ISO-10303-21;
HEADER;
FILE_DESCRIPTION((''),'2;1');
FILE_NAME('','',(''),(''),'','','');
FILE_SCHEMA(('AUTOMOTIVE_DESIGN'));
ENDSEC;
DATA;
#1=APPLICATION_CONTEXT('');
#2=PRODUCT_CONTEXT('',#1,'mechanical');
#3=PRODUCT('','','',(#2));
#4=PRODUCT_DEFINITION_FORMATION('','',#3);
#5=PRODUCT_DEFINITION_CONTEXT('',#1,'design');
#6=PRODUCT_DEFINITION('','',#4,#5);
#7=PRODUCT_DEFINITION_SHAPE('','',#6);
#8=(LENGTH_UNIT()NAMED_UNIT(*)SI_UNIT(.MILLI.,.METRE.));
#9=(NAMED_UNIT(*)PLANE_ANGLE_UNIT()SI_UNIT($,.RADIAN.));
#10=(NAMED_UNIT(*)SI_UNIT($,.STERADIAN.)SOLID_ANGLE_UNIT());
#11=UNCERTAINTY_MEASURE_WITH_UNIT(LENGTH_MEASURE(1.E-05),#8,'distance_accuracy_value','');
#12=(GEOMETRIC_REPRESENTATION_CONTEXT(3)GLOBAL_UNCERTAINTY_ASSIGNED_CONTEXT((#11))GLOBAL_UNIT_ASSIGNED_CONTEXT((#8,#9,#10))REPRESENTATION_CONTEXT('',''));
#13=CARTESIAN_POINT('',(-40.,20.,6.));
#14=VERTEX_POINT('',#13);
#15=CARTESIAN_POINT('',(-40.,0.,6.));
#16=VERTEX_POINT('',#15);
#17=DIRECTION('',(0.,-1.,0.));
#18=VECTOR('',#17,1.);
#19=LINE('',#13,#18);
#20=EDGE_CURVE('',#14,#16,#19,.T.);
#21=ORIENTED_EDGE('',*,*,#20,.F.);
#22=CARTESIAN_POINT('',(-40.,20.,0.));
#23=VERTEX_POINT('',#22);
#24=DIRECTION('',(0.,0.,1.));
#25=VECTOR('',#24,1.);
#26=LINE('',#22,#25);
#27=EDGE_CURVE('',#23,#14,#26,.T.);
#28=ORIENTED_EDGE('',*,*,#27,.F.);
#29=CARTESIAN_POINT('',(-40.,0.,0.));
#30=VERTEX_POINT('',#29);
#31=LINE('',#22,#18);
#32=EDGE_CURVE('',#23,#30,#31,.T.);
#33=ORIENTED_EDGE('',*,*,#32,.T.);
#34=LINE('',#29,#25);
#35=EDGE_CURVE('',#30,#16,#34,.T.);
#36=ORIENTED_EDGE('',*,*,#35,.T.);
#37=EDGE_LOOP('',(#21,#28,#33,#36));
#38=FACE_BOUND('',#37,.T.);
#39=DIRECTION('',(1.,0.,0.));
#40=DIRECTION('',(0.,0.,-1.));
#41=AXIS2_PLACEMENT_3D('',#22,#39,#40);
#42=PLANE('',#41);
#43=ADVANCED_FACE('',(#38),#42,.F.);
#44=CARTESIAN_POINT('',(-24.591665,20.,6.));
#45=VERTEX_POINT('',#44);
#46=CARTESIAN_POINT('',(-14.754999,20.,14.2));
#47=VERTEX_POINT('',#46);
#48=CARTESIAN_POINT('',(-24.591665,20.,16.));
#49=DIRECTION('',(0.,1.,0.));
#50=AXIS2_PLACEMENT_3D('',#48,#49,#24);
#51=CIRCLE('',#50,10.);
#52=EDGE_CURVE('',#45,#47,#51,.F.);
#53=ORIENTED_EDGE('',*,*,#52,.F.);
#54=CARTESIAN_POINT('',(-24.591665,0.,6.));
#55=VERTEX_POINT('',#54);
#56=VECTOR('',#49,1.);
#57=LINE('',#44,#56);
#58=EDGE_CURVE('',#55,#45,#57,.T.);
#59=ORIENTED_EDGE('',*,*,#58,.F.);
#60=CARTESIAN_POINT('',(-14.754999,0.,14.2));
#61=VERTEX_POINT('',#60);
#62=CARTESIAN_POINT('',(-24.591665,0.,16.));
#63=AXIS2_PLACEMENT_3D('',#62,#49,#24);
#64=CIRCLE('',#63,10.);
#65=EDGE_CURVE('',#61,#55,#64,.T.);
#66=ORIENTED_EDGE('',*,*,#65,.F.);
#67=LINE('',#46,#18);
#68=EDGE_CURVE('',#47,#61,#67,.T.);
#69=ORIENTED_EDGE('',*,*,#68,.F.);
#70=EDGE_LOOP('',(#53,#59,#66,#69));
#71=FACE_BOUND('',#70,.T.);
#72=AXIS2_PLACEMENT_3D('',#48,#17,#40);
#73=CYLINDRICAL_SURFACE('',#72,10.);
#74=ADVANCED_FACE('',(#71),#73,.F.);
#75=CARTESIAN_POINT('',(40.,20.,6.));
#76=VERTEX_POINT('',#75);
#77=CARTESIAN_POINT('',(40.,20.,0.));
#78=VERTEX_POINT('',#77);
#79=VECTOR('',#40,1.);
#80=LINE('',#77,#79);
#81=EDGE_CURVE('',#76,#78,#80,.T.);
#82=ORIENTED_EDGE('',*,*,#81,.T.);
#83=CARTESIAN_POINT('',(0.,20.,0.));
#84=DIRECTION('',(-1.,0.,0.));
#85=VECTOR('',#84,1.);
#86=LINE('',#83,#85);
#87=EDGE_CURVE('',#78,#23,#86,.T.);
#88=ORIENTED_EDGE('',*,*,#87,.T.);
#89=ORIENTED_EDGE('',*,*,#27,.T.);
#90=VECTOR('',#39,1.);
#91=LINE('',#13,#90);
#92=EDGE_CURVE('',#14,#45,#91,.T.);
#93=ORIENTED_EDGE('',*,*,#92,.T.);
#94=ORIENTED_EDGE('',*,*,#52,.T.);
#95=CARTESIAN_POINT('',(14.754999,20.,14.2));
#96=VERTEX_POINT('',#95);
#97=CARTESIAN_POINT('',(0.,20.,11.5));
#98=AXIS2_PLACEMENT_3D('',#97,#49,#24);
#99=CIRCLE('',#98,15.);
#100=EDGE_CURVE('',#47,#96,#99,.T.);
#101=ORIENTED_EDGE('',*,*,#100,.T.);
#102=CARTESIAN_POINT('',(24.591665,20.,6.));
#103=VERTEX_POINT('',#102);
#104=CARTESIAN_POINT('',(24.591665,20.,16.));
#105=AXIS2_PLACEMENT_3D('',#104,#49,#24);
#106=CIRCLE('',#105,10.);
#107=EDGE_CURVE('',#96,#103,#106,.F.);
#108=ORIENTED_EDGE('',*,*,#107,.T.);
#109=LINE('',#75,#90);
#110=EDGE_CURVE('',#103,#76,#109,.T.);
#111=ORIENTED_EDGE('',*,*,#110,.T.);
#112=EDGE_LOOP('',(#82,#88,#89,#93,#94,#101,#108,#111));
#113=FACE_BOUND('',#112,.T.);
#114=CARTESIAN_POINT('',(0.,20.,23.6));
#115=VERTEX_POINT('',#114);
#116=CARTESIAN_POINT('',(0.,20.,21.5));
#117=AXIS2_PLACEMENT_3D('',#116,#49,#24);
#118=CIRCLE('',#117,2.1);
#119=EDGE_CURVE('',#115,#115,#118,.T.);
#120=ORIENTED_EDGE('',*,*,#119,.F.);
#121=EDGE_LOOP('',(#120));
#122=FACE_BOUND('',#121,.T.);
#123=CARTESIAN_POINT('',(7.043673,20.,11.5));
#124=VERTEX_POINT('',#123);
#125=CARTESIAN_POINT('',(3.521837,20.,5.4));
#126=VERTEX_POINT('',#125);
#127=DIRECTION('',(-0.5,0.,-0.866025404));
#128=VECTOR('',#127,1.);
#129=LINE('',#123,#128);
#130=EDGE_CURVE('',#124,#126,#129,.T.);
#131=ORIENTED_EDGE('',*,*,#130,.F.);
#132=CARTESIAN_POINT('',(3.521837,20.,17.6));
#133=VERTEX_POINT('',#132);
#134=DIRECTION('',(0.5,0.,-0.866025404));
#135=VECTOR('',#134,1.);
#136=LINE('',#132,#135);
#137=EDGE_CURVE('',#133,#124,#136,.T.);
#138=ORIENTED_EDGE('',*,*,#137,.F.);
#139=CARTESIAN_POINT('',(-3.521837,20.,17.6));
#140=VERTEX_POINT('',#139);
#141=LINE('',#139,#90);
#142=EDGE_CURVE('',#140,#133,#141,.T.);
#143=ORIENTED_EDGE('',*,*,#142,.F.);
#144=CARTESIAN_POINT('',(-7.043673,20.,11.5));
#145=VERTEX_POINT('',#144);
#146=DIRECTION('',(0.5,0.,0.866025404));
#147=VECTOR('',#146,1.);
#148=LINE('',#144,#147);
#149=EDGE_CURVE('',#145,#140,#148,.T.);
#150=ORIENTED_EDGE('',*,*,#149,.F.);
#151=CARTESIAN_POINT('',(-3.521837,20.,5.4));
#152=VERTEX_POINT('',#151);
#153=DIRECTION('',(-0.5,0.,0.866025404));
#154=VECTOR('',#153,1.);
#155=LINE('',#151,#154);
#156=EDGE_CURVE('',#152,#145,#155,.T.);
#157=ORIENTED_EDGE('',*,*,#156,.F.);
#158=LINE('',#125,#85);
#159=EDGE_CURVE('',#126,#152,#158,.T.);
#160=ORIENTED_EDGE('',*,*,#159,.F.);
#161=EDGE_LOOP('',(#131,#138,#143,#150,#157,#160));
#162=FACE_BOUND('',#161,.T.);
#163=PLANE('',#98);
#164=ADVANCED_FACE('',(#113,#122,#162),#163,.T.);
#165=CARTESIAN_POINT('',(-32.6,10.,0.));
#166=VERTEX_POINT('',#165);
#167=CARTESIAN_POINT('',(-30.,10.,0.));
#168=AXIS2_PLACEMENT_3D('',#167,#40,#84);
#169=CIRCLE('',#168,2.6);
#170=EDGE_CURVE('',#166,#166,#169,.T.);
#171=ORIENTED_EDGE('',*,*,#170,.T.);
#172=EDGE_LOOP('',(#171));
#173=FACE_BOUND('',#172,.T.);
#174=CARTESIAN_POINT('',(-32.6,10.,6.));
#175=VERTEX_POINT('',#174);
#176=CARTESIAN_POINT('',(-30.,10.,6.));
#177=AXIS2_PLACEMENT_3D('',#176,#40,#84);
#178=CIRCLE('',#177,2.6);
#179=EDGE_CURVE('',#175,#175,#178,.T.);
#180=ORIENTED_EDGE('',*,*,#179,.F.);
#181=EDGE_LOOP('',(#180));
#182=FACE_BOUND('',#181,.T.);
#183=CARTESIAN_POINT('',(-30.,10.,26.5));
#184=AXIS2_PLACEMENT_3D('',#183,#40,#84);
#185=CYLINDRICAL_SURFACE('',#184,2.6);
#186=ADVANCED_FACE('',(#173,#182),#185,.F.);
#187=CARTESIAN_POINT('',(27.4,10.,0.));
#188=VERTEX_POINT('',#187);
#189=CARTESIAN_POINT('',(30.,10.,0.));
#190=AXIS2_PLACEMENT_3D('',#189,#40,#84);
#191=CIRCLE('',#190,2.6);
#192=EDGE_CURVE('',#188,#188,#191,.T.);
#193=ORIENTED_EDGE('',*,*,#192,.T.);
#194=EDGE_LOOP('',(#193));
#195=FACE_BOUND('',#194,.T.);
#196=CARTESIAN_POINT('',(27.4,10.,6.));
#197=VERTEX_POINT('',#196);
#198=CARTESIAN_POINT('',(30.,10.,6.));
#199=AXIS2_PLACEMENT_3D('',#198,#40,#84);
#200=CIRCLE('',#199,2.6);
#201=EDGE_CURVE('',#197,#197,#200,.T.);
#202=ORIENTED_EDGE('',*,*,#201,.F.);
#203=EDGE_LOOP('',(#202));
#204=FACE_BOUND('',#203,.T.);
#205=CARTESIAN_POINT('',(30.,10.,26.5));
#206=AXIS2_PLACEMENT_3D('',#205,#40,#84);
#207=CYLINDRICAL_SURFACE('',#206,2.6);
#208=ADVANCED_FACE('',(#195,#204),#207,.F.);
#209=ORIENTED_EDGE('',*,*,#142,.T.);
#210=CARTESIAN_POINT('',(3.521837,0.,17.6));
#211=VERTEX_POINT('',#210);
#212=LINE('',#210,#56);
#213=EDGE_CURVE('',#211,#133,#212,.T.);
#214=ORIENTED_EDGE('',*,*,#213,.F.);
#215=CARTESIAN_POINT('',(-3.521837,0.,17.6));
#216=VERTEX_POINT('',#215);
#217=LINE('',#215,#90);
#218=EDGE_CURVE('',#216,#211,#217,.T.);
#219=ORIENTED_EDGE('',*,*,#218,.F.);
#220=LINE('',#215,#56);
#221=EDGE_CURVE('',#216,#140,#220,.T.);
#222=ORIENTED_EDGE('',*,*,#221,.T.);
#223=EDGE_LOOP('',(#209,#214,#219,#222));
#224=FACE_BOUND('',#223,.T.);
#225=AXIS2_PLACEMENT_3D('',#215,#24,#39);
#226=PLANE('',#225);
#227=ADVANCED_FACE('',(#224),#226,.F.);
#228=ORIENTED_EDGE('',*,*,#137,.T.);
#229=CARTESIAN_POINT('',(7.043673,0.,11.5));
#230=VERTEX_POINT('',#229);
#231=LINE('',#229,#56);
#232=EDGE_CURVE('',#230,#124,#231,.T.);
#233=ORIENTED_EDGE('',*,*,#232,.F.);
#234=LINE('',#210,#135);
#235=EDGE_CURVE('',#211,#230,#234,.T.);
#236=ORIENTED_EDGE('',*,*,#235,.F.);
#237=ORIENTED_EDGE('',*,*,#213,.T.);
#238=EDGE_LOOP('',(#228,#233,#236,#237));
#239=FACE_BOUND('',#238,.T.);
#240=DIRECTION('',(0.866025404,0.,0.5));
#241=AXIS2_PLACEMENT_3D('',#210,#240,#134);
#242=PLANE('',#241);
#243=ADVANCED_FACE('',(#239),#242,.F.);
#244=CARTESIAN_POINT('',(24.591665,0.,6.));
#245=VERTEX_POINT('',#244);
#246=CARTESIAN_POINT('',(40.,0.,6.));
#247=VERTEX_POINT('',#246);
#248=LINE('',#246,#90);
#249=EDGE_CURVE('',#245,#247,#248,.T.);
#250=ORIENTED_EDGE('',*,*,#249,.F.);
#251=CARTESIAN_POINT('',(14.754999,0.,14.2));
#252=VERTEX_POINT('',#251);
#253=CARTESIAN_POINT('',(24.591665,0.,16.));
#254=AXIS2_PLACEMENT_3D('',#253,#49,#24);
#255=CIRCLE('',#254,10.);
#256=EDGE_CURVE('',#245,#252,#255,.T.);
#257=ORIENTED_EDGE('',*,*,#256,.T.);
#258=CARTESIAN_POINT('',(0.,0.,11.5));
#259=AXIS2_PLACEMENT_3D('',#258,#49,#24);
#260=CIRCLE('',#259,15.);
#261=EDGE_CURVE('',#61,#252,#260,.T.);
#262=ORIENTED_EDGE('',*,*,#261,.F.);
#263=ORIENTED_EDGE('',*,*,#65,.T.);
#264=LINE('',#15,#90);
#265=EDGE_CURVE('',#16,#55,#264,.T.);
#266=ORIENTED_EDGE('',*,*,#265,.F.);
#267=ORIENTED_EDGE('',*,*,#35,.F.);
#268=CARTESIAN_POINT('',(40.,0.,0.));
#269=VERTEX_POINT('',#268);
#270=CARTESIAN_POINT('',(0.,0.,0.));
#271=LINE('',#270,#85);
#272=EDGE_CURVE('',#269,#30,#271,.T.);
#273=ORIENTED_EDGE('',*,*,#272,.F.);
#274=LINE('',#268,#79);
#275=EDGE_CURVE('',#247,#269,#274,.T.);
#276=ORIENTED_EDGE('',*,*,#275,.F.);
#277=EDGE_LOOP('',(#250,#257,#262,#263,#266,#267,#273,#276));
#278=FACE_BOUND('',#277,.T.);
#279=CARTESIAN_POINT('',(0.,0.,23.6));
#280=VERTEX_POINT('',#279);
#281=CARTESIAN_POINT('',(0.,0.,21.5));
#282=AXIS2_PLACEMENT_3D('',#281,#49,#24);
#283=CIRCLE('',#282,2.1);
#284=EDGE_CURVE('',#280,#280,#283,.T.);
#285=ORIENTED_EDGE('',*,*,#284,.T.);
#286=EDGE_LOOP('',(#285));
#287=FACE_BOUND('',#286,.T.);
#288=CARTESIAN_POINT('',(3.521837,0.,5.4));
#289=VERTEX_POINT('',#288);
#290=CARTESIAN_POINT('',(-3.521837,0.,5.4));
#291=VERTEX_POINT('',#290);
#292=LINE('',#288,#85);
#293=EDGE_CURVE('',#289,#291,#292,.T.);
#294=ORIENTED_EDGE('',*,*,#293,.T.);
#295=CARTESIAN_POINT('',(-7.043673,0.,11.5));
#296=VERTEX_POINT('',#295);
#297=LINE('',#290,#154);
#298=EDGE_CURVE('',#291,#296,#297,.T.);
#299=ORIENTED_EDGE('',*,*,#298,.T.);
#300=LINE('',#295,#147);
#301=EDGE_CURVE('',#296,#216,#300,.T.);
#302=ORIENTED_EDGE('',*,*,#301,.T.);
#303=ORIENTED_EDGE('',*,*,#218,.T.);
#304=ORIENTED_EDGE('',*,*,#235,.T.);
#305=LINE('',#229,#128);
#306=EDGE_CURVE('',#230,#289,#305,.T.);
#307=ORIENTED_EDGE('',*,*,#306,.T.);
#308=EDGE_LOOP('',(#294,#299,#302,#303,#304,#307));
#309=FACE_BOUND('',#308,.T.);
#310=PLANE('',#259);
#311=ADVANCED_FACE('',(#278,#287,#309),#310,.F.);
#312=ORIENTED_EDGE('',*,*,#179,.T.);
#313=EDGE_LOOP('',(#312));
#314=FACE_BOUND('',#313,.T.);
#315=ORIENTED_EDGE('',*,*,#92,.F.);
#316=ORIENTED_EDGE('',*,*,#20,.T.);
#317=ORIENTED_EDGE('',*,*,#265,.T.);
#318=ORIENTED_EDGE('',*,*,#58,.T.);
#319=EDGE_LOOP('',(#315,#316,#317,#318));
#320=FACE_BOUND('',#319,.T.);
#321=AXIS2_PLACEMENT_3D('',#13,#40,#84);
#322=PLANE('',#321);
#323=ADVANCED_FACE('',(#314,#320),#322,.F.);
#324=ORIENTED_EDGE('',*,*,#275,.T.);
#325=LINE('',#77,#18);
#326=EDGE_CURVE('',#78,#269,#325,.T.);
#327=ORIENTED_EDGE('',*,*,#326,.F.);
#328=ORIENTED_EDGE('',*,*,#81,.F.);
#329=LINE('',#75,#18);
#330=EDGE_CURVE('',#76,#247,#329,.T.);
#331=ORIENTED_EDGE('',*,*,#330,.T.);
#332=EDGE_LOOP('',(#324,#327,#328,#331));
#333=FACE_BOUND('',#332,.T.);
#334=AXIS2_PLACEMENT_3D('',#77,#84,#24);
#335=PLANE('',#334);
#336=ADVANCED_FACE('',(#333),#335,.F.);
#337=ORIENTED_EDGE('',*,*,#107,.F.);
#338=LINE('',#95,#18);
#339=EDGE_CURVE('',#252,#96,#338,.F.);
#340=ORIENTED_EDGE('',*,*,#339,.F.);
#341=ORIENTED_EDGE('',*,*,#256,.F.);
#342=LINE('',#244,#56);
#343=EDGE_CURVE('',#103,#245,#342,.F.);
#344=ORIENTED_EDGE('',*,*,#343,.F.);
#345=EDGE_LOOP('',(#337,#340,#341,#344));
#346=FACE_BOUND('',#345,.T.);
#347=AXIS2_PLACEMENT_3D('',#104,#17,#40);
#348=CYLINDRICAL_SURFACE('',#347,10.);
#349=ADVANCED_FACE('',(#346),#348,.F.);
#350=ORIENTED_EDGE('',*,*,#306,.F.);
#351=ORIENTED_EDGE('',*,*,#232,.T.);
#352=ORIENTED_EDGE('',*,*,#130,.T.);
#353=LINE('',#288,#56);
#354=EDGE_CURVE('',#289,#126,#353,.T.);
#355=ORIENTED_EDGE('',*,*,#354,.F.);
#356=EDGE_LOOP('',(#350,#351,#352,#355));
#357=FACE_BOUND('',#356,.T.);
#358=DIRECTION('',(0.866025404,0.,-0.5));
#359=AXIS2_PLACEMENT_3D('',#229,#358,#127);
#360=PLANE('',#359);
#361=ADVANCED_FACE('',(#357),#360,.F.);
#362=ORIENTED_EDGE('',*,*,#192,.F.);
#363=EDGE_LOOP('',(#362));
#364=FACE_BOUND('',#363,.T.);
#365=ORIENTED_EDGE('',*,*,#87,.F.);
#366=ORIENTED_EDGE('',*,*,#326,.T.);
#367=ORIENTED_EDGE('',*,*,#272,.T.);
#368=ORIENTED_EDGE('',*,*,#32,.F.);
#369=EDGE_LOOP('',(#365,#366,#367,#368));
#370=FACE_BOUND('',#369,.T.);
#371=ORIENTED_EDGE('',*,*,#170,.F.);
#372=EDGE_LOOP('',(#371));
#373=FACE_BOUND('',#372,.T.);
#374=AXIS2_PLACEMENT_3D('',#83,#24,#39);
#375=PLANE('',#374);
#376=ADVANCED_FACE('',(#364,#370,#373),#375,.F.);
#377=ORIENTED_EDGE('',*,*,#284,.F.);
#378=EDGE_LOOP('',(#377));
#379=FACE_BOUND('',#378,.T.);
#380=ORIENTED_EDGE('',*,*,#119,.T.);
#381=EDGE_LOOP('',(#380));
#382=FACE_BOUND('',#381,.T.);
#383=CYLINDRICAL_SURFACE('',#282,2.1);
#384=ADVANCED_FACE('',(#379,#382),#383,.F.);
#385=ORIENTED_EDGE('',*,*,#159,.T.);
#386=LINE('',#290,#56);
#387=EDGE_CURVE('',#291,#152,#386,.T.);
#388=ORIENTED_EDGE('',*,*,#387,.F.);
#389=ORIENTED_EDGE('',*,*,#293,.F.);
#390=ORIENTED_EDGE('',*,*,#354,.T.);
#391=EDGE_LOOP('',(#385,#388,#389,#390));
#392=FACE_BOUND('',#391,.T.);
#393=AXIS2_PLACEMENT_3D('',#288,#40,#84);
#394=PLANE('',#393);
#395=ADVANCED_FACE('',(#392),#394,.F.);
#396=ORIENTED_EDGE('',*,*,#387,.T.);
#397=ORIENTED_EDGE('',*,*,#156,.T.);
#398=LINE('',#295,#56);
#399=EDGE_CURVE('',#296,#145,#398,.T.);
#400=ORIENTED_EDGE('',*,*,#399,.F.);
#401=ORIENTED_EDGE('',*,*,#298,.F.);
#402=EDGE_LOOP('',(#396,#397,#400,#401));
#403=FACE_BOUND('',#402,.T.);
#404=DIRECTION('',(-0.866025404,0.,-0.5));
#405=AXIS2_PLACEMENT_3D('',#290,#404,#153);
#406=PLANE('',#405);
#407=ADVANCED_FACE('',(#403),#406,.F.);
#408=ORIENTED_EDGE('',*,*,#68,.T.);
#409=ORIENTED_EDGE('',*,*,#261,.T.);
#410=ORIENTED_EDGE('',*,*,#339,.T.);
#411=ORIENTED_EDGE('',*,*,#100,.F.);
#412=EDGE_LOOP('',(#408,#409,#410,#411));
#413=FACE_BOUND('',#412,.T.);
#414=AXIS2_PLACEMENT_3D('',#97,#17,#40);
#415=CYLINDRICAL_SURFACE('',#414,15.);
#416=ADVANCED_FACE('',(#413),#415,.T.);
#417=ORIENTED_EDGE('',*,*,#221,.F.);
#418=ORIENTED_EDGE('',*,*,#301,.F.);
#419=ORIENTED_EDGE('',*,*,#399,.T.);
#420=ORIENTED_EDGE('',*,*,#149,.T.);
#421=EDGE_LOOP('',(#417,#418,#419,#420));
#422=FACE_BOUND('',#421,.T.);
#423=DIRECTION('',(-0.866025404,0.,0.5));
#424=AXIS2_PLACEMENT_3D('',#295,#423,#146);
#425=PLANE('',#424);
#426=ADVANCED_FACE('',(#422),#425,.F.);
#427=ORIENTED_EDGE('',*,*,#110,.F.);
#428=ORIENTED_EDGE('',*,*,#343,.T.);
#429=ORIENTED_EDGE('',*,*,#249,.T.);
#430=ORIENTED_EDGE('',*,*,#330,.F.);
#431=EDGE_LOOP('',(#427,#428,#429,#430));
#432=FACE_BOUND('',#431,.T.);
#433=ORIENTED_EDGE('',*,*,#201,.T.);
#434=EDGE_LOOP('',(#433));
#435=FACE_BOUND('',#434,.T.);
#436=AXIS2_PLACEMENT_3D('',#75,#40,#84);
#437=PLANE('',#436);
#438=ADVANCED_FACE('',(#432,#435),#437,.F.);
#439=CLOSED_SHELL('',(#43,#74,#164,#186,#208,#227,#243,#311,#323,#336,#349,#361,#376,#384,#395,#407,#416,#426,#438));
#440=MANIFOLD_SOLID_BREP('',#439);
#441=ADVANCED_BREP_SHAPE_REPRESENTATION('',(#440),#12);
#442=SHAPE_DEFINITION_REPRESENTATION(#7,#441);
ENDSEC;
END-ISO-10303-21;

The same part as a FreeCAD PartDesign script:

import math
import FreeCAD as App
import Part
import Sketcher
Q = App.Units.Quantity


def edges_at(feature, points):
    """Names of the edges that pass closest to the given points."""
    edges = feature.Shape.Edges
    near = lambda p: min(range(len(edges)), key=lambda i: edges[i].distToShape(Part.Vertex(*p))[0])
    return sorted({f"Edge{near(p) + 1}" for p in points})


def add_polygon(sketch, points):
    """Adds a closed chain of lines whose ends are joined by coincident constraints."""
    first, n = sketch.GeometryCount, len(points)
    for a, b in zip(points, points[1:] + points[:1]):
        sketch.addGeometry(Part.LineSegment(App.Vector(*a, 0), App.Vector(*b, 0)), False)
    for i in range(n):
        sketch.addConstraint(Sketcher.Constraint("Coincident", first + i, 2, first + (i + 1) % n, 1))

doc = App.newDocument("Part")
body = doc.addObject("PartDesign::Body", "Body")

# Sketch on XZ plane
sketch1 = body.newObject("Sketcher::SketchObject", "Sketch")
sketch1.AttachmentSupport = (doc.getObject("XZ_Plane"), [""])
sketch1.MapMode = "FlatFace"
sketch1.addGeometry([
    Part.LineSegment(App.Vector(40, 6, 0), App.Vector(40, 0, 0)),  # 0
    Part.LineSegment(App.Vector(40, 0, 0), App.Vector(-40, 0, 0)),  # 1
    Part.LineSegment(App.Vector(-40, 0, 0), App.Vector(-40, 6, 0)),  # 2
    Part.LineSegment(App.Vector(-40, 6, 0), App.Vector(-13.955286, 6, 0)),  # 3
    Part.ArcOfCircle(Part.Circle(App.Vector(0, 11.5, 0), App.Vector(0, 0, 1), 15), math.radians(-21.510188), math.radians(201.510188)),  # 4
    Part.LineSegment(App.Vector(13.955286, 6, 0), App.Vector(40, 6, 0)),  # 5
], False)
sketch1.addConstraint([
    Sketcher.Constraint("Coincident", 0, 2, 1, 1),
    Sketcher.Constraint("Coincident", 1, 2, 2, 1),
    Sketcher.Constraint("Coincident", 2, 2, 3, 1),
    Sketcher.Constraint("Coincident", 3, 2, 4, 2),
    Sketcher.Constraint("Coincident", 4, 1, 5, 1),
    Sketcher.Constraint("Coincident", 5, 2, 0, 1),
    Sketcher.Constraint("Vertical", 0),
    Sketcher.Constraint("Horizontal", 1),
    Sketcher.Constraint("Vertical", 2),
    Sketcher.Constraint("Horizontal", 3),
    Sketcher.Constraint("Horizontal", 5),
    Sketcher.Constraint("Symmetric", 0, 2, 1, 2, -1, 1),
    Sketcher.Constraint("Symmetric", 3, 2, 4, 1, -2),
    Sketcher.Constraint("Radius", 4, 15.0),
    Sketcher.Constraint("DistanceX", 1, 2, 1, 1, 80.0),
    Sketcher.Constraint("DistanceY", 0, 2, 0, 1, 6.0),
    Sketcher.Constraint("DistanceY", -1, 1, 4, 3, 11.5),
])
pad1 = body.newObject("PartDesign::Pad", "Pad")
pad1.Profile = sketch1
pad1.Length = 20
pad1.Reversed = True
doc.recompute()

fillet = body.newObject("PartDesign::Fillet", "Fillet")
fillet.Base = (pad1, edges_at(pad1, [(13.955, 10, 6), (-13.955, 10, 6)]))
fillet.Radius = 10

# Sketch on XZ plane
sketch2 = body.newObject("Sketcher::SketchObject", "Sketch001")
sketch2.AttachmentSupport = (doc.getObject("XZ_Plane"), [""])
sketch2.MapMode = "FlatFace"
sketch2.AttachmentOffset = App.Placement(App.Vector(0, 0, -20), App.Rotation())
add_polygon(sketch2, [(-7.043673, 11.5), (-3.521837, 17.6), (3.521837, 17.6), (7.043673, 11.5), (3.521837, 5.4), (-3.521837, 5.4)])  # lines 0-5
sketch2.addConstraint([
    Sketcher.Constraint("Horizontal", 1),
    Sketcher.Constraint("Horizontal", 4),
    Sketcher.Constraint("Symmetric", 2, 2, 5, 2, -2),
    Sketcher.Constraint("Parallel", 0, 3),
    Sketcher.Constraint("Parallel", 2, 5),
    Sketcher.Constraint("Vertical", 1, 2, 3, 2),
    Sketcher.Constraint("Vertical", 0, 2, 4, 2),
    Sketcher.Constraint("Angle", 0, Q("60 deg")),
    Sketcher.Constraint("DistanceY", -1, 1, 0, 2, 17.6),
    Sketcher.Constraint("DistanceY", -1, 1, 2, 2, 11.5),
    Sketcher.Constraint("DistanceX", 1, 1, 1, 2, 7.043673),
])
pocket1 = body.newObject("PartDesign::Pocket", "Pocket")
pocket1.Profile = sketch2
pocket1.Type = "ThroughAll"
pocket1.Reversed = True

# Sketch on XZ plane
sketch3 = body.newObject("Sketcher::SketchObject", "Sketch002")
sketch3.AttachmentSupport = (doc.getObject("XZ_Plane"), [""])
sketch3.MapMode = "FlatFace"
sketch3.AttachmentOffset = App.Placement(App.Vector(0, 0, -20), App.Rotation())
sketch3.addGeometry(Part.Circle(App.Vector(0, 21.5, 0), App.Vector(0, 0, 1), 2.1), False)
sketch3.addConstraint([
    Sketcher.Constraint("PointOnObject", 0, 3, -2),
    Sketcher.Constraint("Diameter", 0, 4.2),
    Sketcher.Constraint("DistanceY", -1, 1, 0, 3, 21.5),
])
pocket2 = body.newObject("PartDesign::Pocket", "Pocket001")
pocket2.Profile = sketch3
pocket2.Type = "ThroughAll"
pocket2.Reversed = True

# Sketch on XY plane
sketch4 = body.newObject("Sketcher::SketchObject", "Sketch003")
sketch4.AttachmentSupport = (doc.getObject("XY_Plane"), [""])
sketch4.MapMode = "FlatFace"
sketch4.addGeometry([
    Part.Circle(App.Vector(30, 10, 0), App.Vector(0, 0, 1), 2.6),
    Part.Circle(App.Vector(-30, 10, 0), App.Vector(0, 0, 1), 2.6),
], False)
sketch4.addConstraint([
    Sketcher.Constraint("Equal", 0, 1),
    Sketcher.Constraint("Symmetric", 0, 3, 1, 3, -2),
    Sketcher.Constraint("Diameter", 0, 5.2),
    Sketcher.Constraint("DistanceX", -1, 1, 0, 3, 30.0),
    Sketcher.Constraint("DistanceY", -1, 1, 0, 3, 10.0),
])
pocket3 = body.newObject("PartDesign::Pocket", "Pocket002")
pocket3.Profile = sketch4
pocket3.Type = "ThroughAll"
pocket3.Reversed = True

doc.recompute()
